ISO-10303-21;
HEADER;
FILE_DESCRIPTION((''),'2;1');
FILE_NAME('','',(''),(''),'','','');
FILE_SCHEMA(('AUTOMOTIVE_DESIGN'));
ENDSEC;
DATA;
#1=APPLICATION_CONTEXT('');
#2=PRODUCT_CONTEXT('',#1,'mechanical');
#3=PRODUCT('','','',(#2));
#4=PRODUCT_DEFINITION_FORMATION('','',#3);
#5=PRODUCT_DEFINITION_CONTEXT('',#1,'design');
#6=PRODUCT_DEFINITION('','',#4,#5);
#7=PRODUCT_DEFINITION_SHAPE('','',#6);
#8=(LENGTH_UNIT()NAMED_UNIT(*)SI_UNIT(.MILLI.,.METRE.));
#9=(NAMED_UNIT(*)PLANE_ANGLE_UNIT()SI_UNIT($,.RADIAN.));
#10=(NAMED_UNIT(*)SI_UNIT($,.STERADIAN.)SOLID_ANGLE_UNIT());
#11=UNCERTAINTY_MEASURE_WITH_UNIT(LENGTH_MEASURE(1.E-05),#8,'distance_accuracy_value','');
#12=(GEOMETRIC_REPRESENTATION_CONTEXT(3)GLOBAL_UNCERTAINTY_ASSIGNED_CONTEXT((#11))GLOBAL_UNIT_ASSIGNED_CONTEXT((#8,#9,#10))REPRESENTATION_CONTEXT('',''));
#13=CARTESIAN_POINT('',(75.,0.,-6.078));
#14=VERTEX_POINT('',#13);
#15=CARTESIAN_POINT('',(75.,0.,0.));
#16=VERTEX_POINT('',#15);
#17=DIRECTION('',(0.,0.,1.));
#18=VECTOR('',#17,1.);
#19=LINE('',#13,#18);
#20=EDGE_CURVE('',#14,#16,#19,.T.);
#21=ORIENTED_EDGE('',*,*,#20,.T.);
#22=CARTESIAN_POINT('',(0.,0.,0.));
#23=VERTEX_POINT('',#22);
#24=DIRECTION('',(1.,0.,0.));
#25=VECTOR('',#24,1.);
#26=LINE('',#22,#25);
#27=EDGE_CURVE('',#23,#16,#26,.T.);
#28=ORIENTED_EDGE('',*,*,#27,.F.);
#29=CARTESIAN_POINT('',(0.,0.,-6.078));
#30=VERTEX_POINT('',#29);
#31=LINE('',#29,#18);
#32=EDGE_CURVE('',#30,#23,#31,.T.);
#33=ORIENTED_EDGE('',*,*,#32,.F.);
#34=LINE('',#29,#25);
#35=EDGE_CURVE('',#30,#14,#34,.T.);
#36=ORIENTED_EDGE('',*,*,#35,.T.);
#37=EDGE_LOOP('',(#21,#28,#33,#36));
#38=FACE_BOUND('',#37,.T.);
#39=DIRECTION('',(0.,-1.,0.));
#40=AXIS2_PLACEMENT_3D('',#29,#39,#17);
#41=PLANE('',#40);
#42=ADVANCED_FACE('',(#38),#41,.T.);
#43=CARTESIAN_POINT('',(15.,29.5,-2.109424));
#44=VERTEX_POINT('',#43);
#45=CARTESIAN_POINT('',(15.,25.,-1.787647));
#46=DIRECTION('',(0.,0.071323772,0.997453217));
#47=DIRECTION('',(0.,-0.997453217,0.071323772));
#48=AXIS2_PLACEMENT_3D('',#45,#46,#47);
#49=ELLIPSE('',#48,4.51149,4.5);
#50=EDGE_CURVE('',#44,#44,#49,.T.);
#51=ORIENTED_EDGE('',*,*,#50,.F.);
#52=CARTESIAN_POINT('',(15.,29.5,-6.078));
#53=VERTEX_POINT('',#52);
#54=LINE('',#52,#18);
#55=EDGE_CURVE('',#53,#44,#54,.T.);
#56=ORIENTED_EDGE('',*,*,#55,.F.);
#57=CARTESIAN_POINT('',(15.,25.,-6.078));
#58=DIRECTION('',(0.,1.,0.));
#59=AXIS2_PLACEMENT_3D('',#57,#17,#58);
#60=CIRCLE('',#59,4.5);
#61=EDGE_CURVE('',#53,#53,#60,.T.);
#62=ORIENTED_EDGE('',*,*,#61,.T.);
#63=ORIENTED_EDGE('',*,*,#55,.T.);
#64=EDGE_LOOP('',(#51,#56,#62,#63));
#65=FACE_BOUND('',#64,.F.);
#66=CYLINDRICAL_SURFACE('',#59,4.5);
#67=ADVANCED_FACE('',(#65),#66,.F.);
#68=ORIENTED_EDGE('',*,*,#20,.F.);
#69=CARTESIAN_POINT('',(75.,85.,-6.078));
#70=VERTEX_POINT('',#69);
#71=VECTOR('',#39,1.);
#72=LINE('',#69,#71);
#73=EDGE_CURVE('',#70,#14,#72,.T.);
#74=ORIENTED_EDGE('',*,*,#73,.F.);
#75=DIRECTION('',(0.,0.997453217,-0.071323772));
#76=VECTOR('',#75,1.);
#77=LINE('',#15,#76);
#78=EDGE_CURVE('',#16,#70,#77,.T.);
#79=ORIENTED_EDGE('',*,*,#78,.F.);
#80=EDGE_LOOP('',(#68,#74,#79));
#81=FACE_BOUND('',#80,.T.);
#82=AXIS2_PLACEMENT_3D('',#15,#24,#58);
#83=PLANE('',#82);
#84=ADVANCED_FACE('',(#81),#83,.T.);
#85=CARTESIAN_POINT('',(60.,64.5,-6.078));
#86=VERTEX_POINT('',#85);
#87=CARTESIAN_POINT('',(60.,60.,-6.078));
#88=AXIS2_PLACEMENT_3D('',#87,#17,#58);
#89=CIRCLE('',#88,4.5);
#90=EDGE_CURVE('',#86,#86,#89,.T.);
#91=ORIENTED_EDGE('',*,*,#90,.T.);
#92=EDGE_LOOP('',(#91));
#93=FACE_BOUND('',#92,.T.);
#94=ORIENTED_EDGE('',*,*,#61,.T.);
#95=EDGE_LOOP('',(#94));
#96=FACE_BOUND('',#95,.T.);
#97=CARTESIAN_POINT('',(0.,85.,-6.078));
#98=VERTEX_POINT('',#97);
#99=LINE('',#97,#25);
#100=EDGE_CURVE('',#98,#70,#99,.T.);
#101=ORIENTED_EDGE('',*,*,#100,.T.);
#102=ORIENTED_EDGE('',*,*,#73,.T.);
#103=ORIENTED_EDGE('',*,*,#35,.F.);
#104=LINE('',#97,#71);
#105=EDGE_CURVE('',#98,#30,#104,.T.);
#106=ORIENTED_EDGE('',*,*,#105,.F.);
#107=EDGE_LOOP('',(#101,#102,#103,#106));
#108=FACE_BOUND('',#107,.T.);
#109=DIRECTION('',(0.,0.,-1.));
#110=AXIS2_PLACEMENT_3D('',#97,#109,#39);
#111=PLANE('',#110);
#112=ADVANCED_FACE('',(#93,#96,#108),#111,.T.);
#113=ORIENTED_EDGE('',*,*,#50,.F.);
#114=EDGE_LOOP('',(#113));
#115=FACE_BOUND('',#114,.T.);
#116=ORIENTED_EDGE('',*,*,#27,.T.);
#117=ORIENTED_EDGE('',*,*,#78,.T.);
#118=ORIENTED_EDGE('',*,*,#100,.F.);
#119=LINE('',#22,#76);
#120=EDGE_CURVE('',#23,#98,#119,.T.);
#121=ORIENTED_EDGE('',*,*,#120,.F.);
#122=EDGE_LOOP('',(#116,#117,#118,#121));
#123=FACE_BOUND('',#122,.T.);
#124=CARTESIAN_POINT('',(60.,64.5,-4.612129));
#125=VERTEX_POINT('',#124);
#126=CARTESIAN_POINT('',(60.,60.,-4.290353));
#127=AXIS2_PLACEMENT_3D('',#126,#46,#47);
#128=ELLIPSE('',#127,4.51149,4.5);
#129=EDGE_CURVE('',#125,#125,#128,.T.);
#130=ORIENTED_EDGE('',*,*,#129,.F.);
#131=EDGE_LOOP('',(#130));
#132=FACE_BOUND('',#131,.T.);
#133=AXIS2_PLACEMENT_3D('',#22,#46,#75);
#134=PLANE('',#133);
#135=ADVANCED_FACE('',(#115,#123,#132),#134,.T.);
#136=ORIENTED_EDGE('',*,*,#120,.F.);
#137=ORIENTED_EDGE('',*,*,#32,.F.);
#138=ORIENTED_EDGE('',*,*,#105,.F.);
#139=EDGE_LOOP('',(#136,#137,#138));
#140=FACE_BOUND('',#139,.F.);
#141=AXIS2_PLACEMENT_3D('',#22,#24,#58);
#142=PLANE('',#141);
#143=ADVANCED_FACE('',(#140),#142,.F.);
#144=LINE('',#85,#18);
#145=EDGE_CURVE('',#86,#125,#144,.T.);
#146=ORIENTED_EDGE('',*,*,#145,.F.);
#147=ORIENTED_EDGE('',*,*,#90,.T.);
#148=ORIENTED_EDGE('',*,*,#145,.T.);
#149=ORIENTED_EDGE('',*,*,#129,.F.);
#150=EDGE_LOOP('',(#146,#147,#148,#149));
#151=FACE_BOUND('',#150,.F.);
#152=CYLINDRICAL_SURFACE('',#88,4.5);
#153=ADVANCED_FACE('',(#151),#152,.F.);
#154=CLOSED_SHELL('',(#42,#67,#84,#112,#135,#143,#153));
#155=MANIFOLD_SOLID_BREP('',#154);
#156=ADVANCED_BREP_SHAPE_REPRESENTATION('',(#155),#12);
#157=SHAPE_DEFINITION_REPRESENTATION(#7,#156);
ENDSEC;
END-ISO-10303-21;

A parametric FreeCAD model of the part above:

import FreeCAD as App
import Part
import Sketcher
Q = App.Units.Quantity


def add_polygon(sketch, points):
    """Adds a closed chain of lines whose ends are joined by coincident constraints."""
    first, n = sketch.GeometryCount, len(points)
    for a, b in zip(points, points[1:] + points[:1]):
        sketch.addGeometry(Part.LineSegment(App.Vector(*a, 0), App.Vector(*b, 0)), False)
    for i in range(n):
        sketch.addConstraint(Sketcher.Constraint("Coincident", first + i, 2, first + (i + 1) % n, 1))

doc = App.newDocument("Part")
body = doc.addObject("PartDesign::Body", "Body")

# Sketch on YZ plane
sketch1 = doc.addObject("Sketcher::SketchObject", "Sketch")
body.addObject(sketch1)
sketch1.AttachmentSupport = (doc.YZ_Plane, [""])
sketch1.MapMode = "FlatFace"
add_polygon(sketch1, [(85, -6.078), (0, 0), (0, -6.078)])  # lines 0-2
sketch1.addConstraint(Sketcher.Constraint("Vertical", 1))
sketch1.addConstraint(Sketcher.Constraint("Horizontal", 2))
sketch1.addConstraint(Sketcher.Constraint("Coincident", 0, 2, -1, 1))
sketch1.addConstraint(Sketcher.Constraint("DistanceX", 2, 1, 2, 2, 85.0))
sketch1.addConstraint(Sketcher.Constraint("Angle", 0, Q("175.91 deg")))
pad1 = doc.addObject("PartDesign::Pad", "Pad")
body.addObject(pad1)
pad1.Profile = sketch1
pad1.Length = 75

# Sketch on XY plane
sketch2 = doc.addObject("Sketcher::SketchObject", "Sketch001")
body.addObject(sketch2)
sketch2.AttachmentSupport = (doc.XY_Plane, [""])
sketch2.MapMode = "FlatFace"
sketch2.AttachmentOffset = App.Placement(App.Vector(0, 0, -6.078), App.Rotation())
sketch2.addGeometry(Part.Circle(App.Vector(15, 25, 0), App.Vector(0, 0, 1), 4.5), False)
sketch2.addGeometry(Part.Circle(App.Vector(60, 60, 0), App.Vector(0, 0, 1), 4.5), False)
sketch2.addConstraint(Sketcher.Constraint("Equal", 0, 1))
sketch2.addConstraint(Sketcher.Constraint("Diameter", 0, 9.0))
sketch2.addConstraint(Sketcher.Constraint("DistanceX", -1, 1, 0, 3, 15.0))
sketch2.addConstraint(Sketcher.Constraint("DistanceY", -1, 1, 0, 3, 25.0))
sketch2.addConstraint(Sketcher.Constraint("DistanceX", -1, 1, 1, 3, 60.0))
sketch2.addConstraint(Sketcher.Constraint("DistanceY", -1, 1, 1, 3, 60.0))
doc.recompute()
hole = doc.addObject("PartDesign::Hole", "Hole")
body.addObject(hole)
hole.Profile = sketch2
hole.ThreadType = "None"
hole.Diameter = 9
hole.DepthType = "Dimension"
hole.Depth = 10
hole.DrillPoint = "Angled"
hole.DrillPointAngle = 118
hole.Reversed = True

doc.recompute()
